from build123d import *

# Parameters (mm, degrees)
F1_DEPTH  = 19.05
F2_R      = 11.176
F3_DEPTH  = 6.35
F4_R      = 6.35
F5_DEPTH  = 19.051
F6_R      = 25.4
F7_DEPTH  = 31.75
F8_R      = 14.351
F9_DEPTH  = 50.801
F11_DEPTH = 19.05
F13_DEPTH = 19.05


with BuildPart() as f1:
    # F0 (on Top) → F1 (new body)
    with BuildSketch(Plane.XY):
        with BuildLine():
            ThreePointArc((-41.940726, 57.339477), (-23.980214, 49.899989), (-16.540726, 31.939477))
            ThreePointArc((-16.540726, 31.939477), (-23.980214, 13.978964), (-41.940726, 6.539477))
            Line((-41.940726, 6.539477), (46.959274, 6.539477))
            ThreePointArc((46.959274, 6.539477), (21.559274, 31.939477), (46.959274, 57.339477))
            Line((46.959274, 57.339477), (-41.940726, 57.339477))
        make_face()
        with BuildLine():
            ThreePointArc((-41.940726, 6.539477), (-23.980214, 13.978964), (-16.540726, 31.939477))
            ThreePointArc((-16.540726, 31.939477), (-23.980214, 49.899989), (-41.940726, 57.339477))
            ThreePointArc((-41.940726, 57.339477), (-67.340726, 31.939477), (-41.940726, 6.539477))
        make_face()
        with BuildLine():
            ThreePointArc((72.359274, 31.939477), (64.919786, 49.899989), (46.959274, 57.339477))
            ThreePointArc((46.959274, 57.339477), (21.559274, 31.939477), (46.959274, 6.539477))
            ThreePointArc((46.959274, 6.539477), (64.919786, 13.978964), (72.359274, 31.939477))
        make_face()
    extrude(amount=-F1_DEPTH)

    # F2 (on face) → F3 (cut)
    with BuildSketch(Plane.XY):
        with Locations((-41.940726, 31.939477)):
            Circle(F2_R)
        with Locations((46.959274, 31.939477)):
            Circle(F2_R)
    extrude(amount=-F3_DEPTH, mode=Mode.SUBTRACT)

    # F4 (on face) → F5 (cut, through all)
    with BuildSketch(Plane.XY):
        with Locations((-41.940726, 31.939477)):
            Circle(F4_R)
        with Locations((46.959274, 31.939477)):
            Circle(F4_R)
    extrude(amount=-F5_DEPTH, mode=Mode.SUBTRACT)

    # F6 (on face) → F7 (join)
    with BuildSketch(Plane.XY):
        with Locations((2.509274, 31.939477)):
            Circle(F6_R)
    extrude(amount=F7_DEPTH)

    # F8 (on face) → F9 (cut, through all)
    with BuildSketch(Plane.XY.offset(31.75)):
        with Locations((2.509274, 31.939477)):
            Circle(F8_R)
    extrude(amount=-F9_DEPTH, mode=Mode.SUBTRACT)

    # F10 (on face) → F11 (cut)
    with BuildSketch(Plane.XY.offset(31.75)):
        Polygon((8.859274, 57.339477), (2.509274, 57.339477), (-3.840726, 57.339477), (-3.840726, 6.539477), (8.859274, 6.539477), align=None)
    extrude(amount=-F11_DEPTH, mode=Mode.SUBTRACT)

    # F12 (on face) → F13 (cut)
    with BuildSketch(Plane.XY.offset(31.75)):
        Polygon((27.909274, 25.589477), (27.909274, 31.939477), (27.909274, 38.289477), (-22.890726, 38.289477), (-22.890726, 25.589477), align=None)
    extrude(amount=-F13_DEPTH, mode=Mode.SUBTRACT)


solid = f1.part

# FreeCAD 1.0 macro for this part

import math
import FreeCAD as App
import Part
import Sketcher
Q = App.Units.Quantity


def add_polygon(sketch, points):
    """Adds a closed chain of lines whose ends are joined by coincident constraints."""
    first, n = sketch.GeometryCount, len(points)
    for a, b in zip(points, points[1:] + points[:1]):
        sketch.addGeometry(Part.LineSegment(App.Vector(*a, 0), App.Vector(*b, 0)), False)
    for i in range(n):
        sketch.addConstraint(Sketcher.Constraint("Coincident", first + i, 2, first + (i + 1) % n, 1))

doc = App.newDocument("Part")
params = doc.addObject("Spreadsheet::Sheet", "Params")
for row, (alias, value) in enumerate([
    ("sketch1_radius", "1 in"),
    ("sketch1_width", "3.5 in"),
    ("pad1_length", "0.75 in"),
    ("sketch2_diameter", "0.88 in"),
    ("pocket1_length", "0.25 in"),
    ("sketch3_diameter", "0.5 in"),
    ("sketch4_diameter", "2 in"),
    ("pad2_length", "1.25 in"),
    ("sketch5_diameter", "1.13 in"),
    ("sketch6_height", "2 in"),
    ("sketch6_width", "0.5 in"),
    ("pocket4_length", "0.75 in"),
    ("sketch7_width", "2 in"),
    ("sketch7_height", "0.5 in"),
    ("pocket5_length", "0.75 in"),
], start=1):
    params.set(f"A{row}", alias)
    params.set(f"B{row}", "=" + value)
    params.setAlias(f"B{row}", alias)

body = doc.addObject("PartDesign::Body", "Body")

# Sketch on XY plane
sketch1 = body.newObject("Sketcher::SketchObject", "Sketch")
sketch1.AttachmentSupport = (doc.getObject("XY_Plane"), [""])
sketch1.MapMode = "FlatFace"
sketch1.addGeometry([
    Part.LineSegment(App.Vector(-42, 7, 0), App.Vector(47, 7, 0)),  # 0
    Part.ArcOfCircle(Part.Circle(App.Vector(47, 32, 0), App.Vector(0, 0, 1), 25), math.radians(-90), math.radians(0)),  # 1
    Part.ArcOfCircle(Part.Circle(App.Vector(47, 32, 0), App.Vector(0, 0, 1), 25), math.radians(0), math.radians(90)),  # 2
    Part.LineSegment(App.Vector(47, 57, 0), App.Vector(-42, 57, 0)),  # 3
    Part.ArcOfCircle(Part.Circle(App.Vector(-42, 32, 0), App.Vector(0, 0, 1), 25), math.radians(90), math.radians(270)),  # 4
], False)
sketch1.addConstraint([
    Sketcher.Constraint("Tangent", 0, 2, 1, 1),
    Sketcher.Constraint("Tangent", 1, 2, 2, 1),
    Sketcher.Constraint("Tangent", 2, 2, 3, 1),
    Sketcher.Constraint("Tangent", 3, 2, 4, 1),
    Sketcher.Constraint("Tangent", 4, 2, 0, 1),
    Sketcher.Constraint("Horizontal", 0),
    Sketcher.Constraint("Horizontal", 3),
    Sketcher.Constraint("Equal", 1, 2),
    Sketcher.Constraint("Horizontal", 4, 3, 1, 2),
    Sketcher.Constraint("Radius", 1, Q("1 in")),
    Sketcher.Constraint("DistanceX", 0, 1, 0, 2, Q("3.5 in")),
    Sketcher.Constraint("DistanceX", -1, 1, 1, 3, Q("46.959275 mm")),
    Sketcher.Constraint("DistanceY", -1, 1, 1, 3, Q("31.939476 mm")),
])
sketch1.setExpression("Constraints[9]", "Params.sketch1_radius")
sketch1.setExpression("Constraints[10]", "Params.sketch1_width")
pad1 = body.newObject("PartDesign::Pad", "Pad")
pad1.Profile = sketch1
pad1.setExpression("Length", "Params.pad1_length")
pad1.Reversed = True

# Sketch on XY plane
sketch2 = body.newObject("Sketcher::SketchObject", "Sketch001")
sketch2.AttachmentSupport = (doc.getObject("XY_Plane"), [""])
sketch2.MapMode = "FlatFace"
sketch2.addGeometry([
    Part.Circle(App.Vector(-42, 32, 0), App.Vector(0, 0, 1), 11),
    Part.Circle(App.Vector(47, 32, 0), App.Vector(0, 0, 1), 11),
], False)
sketch2.addConstraint([
    Sketcher.Constraint("Equal", 0, 1),
    Sketcher.Constraint("Horizontal", 0, 3, 1, 3),
    Sketcher.Constraint("Diameter", 0, Q("0.88 in")),
    Sketcher.Constraint("DistanceX", 0, 3, 1, 3, Q("3.5 in")),
    Sketcher.Constraint("DistanceX", 0, 3, -1, 1, Q("41.940726 mm")),
    Sketcher.Constraint("DistanceY", -1, 1, 0, 3, Q("31.939477 mm")),
])
sketch2.setExpression("Constraints[2]", "Params.sketch2_diameter")
pocket1 = body.newObject("PartDesign::Pocket", "Pocket")
pocket1.Profile = sketch2
pocket1.setExpression("Length", "Params.pocket1_length")

# Sketch on XY plane
sketch3 = body.newObject("Sketcher::SketchObject", "Sketch002")
sketch3.AttachmentSupport = (doc.getObject("XY_Plane"), [""])
sketch3.MapMode = "FlatFace"
sketch3.addGeometry([
    Part.Circle(App.Vector(-42, 32, 0), App.Vector(0, 0, 1), 6),
    Part.Circle(App.Vector(47, 32, 0), App.Vector(0, 0, 1), 6),
], False)
sketch3.addConstraint([
    Sketcher.Constraint("Equal", 0, 1),
    Sketcher.Constraint("Horizontal", 0, 3, 1, 3),
    Sketcher.Constraint("Diameter", 0, Q("0.5 in")),
    Sketcher.Constraint("DistanceX", 0, 3, 1, 3, Q("3.5 in")),
    Sketcher.Constraint("DistanceX", 0, 3, -1, 1, Q("41.940726 mm")),
    Sketcher.Constraint("DistanceY", -1, 1, 0, 3, Q("31.939477 mm")),
])
sketch3.setExpression("Constraints[2]", "Params.sketch3_diameter")
pocket2 = body.newObject("PartDesign::Pocket", "Pocket001")
pocket2.Profile = sketch3
pocket2.Type = "ThroughAll"

# Sketch on XY plane
sketch4 = body.newObject("Sketcher::SketchObject", "Sketch003")
sketch4.AttachmentSupport = (doc.getObject("XY_Plane"), [""])
sketch4.MapMode = "FlatFace"
sketch4.addGeometry(Part.Circle(App.Vector(3, 32, 0), App.Vector(0, 0, 1), 25), False)
sketch4.addConstraint([
    Sketcher.Constraint("Diameter", 0, Q("2 in")),
    Sketcher.Constraint("DistanceX", -1, 1, 0, 3, Q("2.509274 mm")),
    Sketcher.Constraint("DistanceY", -1, 1, 0, 3, Q("31.939477 mm")),
])
sketch4.setExpression("Constraints[0]", "Params.sketch4_diameter")
pad2 = body.newObject("PartDesign::Pad", "Pad001")
pad2.Profile = sketch4
pad2.setExpression("Length", "Params.pad2_length")

# Sketch on XY plane
sketch5 = body.newObject("Sketcher::SketchObject", "Sketch004")
sketch5.AttachmentSupport = (doc.getObject("XY_Plane"), [""])
sketch5.MapMode = "FlatFace"
sketch5.AttachmentOffset = App.Placement(App.Vector(0, 0, 1.25 * 25.4), App.Rotation())
sketch5.addGeometry(Part.Circle(App.Vector(3, 32, 0), App.Vector(0, 0, 1), 14), False)
sketch5.addConstraint([
    Sketcher.Constraint("Diameter", 0, Q("1.13 in")),
    Sketcher.Constraint("DistanceX", -1, 1, 0, 3, Q("2.509274 mm")),
    Sketcher.Constraint("DistanceY", -1, 1, 0, 3, Q("31.939477 mm")),
])
sketch5.setExpression("Constraints[0]", "Params.sketch5_diameter")
pocket3 = body.newObject("PartDesign::Pocket", "Pocket002")
pocket3.Profile = sketch5
pocket3.Type = "ThroughAll"

# Sketch on XY plane
sketch6 = body.newObject("Sketcher::SketchObject", "Sketch005")
sketch6.AttachmentSupport = (doc.getObject("XY_Plane"), [""])
sketch6.MapMode = "FlatFace"
sketch6.AttachmentOffset = App.Placement(App.Vector(0, 0, 1.25 * 25.4), App.Rotation())
add_polygon(sketch6, [(9, 57), (-4, 57), (-4, 7), (9, 7)])  # lines 0-3
sketch6.addConstraint([
    Sketcher.Constraint("Horizontal", 0),
    Sketcher.Constraint("Vertical", 1),
    Sketcher.Constraint("Horizontal", 2),
    Sketcher.Constraint("Vertical", 3),
    Sketcher.Constraint("DistanceY", 1, 2, 1, 1, Q("2 in")),
    Sketcher.Constraint("DistanceX", 0, 2, 0, 1, Q("0.5 in")),
    Sketcher.Constraint("DistanceX", 0, 2, -1, 1, Q("3.840726 mm")),
    Sketcher.Constraint("DistanceY", -1, 1, 0, 2, Q("57.339477 mm")),
])
sketch6.setExpression("Constraints[8]", "Params.sketch6_height")
sketch6.setExpression("Constraints[9]", "Params.sketch6_width")
pocket4 = body.newObject("PartDesign::Pocket", "Pocket003")
pocket4.Profile = sketch6
pocket4.setExpression("Length", "Params.pocket4_length")

# Sketch on XY plane
sketch7 = body.newObject("Sketcher::SketchObject", "Sketch006")
sketch7.AttachmentSupport = (doc.getObject("XY_Plane"), [""])
sketch7.MapMode = "FlatFace"
sketch7.AttachmentOffset = App.Placement(App.Vector(0, 0, 1.25 * 25.4), App.Rotation())
add_polygon(sketch7, [(28, 26), (28, 38), (-23, 38), (-23, 26)])  # lines 0-3
sketch7.addConstraint([
    Sketcher.Constraint("Vertical", 0),
    Sketcher.Constraint("Horizontal", 1),
    Sketcher.Constraint("Vertical", 2),
    Sketcher.Constraint("Horizontal", 3),
    Sketcher.Constraint("DistanceX", 1, 2, 1, 1, Q("2 in")),
    Sketcher.Constraint("DistanceY", 0, 1, 0, 2, Q("0.5 in")),
    Sketcher.Constraint("DistanceX", -1, 1, 0, 2, Q("27.909274 mm")),
    Sketcher.Constraint("DistanceY", -1, 1, 0, 2, Q("38.289477 mm")),
])
sketch7.setExpression("Constraints[8]", "Params.sketch7_width")
sketch7.setExpression("Constraints[9]", "Params.sketch7_height")
pocket5 = body.newObject("PartDesign::Pocket", "Pocket004")
pocket5.Profile = sketch7
pocket5.setExpression("Length", "Params.pocket5_length")

doc.recompute()
